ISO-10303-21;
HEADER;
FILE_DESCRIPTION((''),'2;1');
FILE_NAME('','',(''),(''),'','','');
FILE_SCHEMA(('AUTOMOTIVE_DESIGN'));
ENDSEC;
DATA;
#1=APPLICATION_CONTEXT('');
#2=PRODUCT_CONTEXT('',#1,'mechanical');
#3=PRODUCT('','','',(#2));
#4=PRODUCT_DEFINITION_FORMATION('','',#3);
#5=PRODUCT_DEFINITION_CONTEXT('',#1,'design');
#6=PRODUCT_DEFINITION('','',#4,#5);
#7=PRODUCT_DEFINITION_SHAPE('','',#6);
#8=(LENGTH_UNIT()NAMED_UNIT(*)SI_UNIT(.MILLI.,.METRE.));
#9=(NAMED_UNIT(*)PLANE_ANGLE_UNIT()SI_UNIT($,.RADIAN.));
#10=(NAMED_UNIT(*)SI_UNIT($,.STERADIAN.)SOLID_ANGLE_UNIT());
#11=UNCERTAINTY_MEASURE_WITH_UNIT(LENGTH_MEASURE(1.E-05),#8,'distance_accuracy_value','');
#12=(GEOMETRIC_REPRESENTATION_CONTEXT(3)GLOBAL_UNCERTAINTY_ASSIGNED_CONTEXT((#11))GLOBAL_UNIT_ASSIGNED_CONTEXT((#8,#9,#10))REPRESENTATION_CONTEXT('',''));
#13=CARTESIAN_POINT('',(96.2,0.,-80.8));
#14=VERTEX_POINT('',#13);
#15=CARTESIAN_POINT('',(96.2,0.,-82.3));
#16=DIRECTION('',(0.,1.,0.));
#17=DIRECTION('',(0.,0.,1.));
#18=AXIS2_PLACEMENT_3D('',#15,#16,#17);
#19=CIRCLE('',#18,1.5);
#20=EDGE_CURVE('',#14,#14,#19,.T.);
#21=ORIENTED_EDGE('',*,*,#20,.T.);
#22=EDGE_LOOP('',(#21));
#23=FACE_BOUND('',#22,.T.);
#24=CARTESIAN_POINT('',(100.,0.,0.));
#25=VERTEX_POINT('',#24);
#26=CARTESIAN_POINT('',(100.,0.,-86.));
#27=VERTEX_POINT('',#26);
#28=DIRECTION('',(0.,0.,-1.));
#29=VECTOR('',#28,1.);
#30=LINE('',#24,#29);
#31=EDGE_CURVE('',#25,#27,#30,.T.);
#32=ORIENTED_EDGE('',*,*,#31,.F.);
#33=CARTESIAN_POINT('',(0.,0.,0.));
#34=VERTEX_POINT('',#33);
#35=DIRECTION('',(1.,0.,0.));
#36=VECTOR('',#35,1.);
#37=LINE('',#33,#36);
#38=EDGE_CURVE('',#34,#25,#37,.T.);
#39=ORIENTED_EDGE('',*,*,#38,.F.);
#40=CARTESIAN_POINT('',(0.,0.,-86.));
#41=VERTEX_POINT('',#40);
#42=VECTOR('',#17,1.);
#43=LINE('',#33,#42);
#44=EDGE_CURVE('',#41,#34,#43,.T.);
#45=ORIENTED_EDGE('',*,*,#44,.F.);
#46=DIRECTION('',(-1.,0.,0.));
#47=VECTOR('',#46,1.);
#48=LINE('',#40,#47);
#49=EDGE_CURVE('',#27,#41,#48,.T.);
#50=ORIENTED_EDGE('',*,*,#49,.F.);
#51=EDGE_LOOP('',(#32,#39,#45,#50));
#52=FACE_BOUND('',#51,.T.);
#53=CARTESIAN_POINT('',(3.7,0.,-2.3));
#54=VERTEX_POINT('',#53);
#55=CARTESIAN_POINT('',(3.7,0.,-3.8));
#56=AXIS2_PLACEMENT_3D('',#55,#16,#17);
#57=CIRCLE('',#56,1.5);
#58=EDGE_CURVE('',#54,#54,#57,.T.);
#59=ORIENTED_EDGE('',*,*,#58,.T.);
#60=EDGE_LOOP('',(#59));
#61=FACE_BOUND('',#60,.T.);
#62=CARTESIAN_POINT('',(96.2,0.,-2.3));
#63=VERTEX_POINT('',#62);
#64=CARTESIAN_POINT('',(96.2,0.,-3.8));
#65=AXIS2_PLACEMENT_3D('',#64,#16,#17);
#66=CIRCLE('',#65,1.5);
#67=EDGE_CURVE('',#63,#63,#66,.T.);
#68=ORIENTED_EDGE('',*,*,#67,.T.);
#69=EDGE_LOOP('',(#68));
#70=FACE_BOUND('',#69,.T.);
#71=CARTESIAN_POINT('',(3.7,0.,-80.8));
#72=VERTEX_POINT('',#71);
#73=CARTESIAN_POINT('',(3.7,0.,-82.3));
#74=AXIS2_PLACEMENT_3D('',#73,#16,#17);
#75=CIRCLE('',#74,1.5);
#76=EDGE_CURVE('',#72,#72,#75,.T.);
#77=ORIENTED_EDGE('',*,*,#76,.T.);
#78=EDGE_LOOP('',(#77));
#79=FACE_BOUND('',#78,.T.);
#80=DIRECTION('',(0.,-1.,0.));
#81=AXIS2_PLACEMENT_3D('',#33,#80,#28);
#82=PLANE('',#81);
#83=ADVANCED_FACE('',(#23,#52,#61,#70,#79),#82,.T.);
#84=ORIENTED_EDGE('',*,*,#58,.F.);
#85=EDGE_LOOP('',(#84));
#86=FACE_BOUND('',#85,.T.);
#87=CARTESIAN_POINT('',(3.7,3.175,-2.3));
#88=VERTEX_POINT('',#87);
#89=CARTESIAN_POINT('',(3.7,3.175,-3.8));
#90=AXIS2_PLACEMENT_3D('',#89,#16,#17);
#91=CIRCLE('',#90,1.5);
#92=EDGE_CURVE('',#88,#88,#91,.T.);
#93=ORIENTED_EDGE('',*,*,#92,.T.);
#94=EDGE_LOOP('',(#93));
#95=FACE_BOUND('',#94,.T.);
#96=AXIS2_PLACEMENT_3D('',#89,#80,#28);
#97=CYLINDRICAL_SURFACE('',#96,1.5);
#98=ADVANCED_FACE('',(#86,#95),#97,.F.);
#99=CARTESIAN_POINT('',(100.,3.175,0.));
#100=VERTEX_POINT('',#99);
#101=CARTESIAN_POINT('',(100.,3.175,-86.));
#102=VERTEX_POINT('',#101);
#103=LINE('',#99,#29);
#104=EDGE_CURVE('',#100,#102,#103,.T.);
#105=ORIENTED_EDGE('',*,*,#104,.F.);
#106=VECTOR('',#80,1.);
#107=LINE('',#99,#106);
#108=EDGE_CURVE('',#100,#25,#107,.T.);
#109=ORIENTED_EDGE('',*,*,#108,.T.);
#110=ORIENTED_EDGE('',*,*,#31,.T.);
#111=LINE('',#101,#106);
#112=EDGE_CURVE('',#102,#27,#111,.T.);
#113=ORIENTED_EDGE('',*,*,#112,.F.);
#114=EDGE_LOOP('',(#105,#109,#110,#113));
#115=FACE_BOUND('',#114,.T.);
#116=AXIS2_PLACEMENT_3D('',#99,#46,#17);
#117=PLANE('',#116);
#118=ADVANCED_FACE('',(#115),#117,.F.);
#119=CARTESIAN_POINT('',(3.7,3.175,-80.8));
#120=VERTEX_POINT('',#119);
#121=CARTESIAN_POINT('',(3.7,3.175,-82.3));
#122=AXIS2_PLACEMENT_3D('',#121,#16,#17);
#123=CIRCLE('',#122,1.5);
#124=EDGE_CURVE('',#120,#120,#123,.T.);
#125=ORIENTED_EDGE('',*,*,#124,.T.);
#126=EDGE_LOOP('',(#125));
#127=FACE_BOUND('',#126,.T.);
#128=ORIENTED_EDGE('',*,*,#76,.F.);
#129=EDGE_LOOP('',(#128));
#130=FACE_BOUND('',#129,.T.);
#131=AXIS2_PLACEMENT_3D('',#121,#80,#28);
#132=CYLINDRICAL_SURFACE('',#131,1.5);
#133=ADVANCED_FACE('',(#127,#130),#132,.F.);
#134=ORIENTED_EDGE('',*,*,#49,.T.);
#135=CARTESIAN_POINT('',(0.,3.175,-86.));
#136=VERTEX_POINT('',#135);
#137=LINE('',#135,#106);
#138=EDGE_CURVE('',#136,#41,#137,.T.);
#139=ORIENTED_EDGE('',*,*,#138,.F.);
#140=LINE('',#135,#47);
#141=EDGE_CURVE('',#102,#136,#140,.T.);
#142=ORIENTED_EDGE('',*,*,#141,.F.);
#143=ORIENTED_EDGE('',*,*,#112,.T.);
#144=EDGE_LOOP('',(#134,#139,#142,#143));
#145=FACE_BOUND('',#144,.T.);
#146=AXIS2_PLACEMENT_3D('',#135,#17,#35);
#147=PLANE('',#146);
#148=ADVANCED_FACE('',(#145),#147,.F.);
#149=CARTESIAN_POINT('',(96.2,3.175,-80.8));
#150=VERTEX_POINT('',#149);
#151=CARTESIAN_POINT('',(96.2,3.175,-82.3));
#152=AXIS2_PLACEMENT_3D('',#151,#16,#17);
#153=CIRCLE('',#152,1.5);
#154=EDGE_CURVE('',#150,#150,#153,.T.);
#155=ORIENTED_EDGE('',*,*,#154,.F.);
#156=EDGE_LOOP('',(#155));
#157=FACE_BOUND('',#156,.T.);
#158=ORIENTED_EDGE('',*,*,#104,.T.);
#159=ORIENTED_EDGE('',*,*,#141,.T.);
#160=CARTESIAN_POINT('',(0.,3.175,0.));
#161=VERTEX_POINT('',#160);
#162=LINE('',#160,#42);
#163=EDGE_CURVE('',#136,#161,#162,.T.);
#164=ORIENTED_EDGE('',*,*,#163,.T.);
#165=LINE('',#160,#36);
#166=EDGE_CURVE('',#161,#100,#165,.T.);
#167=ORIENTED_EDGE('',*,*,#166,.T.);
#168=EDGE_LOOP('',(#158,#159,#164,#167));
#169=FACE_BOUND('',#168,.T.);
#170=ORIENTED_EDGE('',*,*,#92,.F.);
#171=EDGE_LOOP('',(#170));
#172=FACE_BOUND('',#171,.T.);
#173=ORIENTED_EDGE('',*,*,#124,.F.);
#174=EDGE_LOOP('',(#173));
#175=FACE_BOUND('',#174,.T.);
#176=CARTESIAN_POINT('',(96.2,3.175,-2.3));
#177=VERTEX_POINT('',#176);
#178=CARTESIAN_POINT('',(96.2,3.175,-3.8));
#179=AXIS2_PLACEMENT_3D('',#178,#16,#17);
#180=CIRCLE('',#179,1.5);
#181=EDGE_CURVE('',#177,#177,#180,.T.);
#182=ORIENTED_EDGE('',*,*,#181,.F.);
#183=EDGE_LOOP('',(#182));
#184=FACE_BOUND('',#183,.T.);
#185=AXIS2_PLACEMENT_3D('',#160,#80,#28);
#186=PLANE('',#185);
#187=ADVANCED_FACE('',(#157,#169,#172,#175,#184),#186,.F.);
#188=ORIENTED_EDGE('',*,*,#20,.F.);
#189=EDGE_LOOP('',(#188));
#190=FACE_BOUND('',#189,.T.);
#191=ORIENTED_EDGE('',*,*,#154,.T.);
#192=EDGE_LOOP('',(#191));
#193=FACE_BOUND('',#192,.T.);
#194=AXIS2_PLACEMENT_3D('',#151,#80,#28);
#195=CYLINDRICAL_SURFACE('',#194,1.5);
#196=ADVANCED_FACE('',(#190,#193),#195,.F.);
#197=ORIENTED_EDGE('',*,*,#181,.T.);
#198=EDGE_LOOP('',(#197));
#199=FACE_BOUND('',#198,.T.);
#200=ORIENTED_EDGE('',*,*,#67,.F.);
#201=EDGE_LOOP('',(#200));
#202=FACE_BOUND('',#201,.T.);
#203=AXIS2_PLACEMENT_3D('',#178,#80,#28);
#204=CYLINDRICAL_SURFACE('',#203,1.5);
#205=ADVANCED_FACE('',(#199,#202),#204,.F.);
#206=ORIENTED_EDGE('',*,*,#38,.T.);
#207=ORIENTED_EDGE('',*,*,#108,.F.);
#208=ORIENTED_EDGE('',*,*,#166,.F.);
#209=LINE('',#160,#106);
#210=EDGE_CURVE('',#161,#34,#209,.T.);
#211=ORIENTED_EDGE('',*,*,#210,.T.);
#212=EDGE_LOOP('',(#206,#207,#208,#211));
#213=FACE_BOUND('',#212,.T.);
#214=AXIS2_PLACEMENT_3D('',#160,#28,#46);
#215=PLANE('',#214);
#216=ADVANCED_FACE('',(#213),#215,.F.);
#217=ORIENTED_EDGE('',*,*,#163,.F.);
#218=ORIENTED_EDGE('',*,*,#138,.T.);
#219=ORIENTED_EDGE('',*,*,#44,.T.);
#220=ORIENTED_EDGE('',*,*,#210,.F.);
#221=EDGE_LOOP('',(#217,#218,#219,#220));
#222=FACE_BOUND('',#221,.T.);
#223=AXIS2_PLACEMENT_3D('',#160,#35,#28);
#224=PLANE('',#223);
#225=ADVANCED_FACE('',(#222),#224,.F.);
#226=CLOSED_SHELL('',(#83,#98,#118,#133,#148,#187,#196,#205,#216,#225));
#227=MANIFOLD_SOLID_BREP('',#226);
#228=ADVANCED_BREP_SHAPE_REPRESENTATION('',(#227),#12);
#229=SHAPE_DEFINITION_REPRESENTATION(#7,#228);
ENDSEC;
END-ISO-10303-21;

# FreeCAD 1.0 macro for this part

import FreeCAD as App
import Part
import Sketcher


def add_polygon(sketch, points):
    """Adds a closed chain of lines whose ends are joined by coincident constraints."""
    first, n = sketch.GeometryCount, len(points)
    for a, b in zip(points, points[1:] + points[:1]):
        sketch.addGeometry(Part.LineSegment(App.Vector(*a, 0), App.Vector(*b, 0)), False)
    for i in range(n):
        sketch.addConstraint(Sketcher.Constraint("Coincident", first + i, 2, first + (i + 1) % n, 1))

doc = App.newDocument("Part")
body = doc.addObject("PartDesign::Body", "Body")

sketch1 = body.newObject("Sketcher::SketchObject", "Sketch")
sketch1.AttachmentSupport = (doc.getObject("XZ_Plane"), [""])
sketch1.MapMode = "FlatFace"
add_polygon(sketch1, [(0, -86), (0, 0), (100, 0), (100, -86)])
sketch1.addGeometry(Part.Circle(App.Vector(3.7, -3.8, 0), App.Vector(0, 0, 1), 1.5), False)
sketch1.addGeometry(Part.Circle(App.Vector(96.2, -3.8, 0), App.Vector(0, 0, 1), 1.5), False)
sketch1.addGeometry(Part.Circle(App.Vector(3.7, -82.3, 0), App.Vector(0, 0, 1), 1.5), False)
sketch1.addGeometry(Part.Circle(App.Vector(96.2, -82.3, 0), App.Vector(0, 0, 1), 1.5), False)
sketch1.addConstraint(Sketcher.Constraint("Vertical", 0))
sketch1.addConstraint(Sketcher.Constraint("Horizontal", 1))
sketch1.addConstraint(Sketcher.Constraint("Vertical", 2))
sketch1.addConstraint(Sketcher.Constraint("Horizontal", 3))
sketch1.addConstraint(Sketcher.Constraint("Coincident", 0, 2, -1, 1))
sketch1.addConstraint(Sketcher.Constraint("Equal", 4, 5))
sketch1.addConstraint(Sketcher.Constraint("Equal", 5, 6))
sketch1.addConstraint(Sketcher.Constraint("Equal", 6, 7))
sketch1.addConstraint(Sketcher.Constraint("Horizontal", 4, 3, 5, 3))
sketch1.addConstraint(Sketcher.Constraint("Horizontal", 6, 3, 7, 3))
sketch1.addConstraint(Sketcher.Constraint("Vertical", 4, 3, 6, 3))
sketch1.addConstraint(Sketcher.Constraint("Vertical", 5, 3, 7, 3))
sketch1.addConstraint(Sketcher.Constraint("Diameter", 4, 3.0))
sketch1.addConstraint(Sketcher.Constraint("DistanceX", 1, 1, 1, 2, 100.0))
sketch1.addConstraint(Sketcher.Constraint("DistanceY", 0, 1, 0, 2, 86.0))
sketch1.addConstraint(Sketcher.Constraint("DistanceX", -1, 1, 4, 3, 3.7))
sketch1.addConstraint(Sketcher.Constraint("DistanceY", 4, 3, -1, 1, 3.8))
sketch1.addConstraint(Sketcher.Constraint("DistanceX", -1, 1, 5, 3, 96.2))
sketch1.addConstraint(Sketcher.Constraint("DistanceY", 6, 3, -1, 1, 82.3))
pad1 = body.newObject("PartDesign::Pad", "Pad")
pad1.Profile = sketch1
pad1.Length = 3.175
pad1.Reversed = True

doc.recompute()
